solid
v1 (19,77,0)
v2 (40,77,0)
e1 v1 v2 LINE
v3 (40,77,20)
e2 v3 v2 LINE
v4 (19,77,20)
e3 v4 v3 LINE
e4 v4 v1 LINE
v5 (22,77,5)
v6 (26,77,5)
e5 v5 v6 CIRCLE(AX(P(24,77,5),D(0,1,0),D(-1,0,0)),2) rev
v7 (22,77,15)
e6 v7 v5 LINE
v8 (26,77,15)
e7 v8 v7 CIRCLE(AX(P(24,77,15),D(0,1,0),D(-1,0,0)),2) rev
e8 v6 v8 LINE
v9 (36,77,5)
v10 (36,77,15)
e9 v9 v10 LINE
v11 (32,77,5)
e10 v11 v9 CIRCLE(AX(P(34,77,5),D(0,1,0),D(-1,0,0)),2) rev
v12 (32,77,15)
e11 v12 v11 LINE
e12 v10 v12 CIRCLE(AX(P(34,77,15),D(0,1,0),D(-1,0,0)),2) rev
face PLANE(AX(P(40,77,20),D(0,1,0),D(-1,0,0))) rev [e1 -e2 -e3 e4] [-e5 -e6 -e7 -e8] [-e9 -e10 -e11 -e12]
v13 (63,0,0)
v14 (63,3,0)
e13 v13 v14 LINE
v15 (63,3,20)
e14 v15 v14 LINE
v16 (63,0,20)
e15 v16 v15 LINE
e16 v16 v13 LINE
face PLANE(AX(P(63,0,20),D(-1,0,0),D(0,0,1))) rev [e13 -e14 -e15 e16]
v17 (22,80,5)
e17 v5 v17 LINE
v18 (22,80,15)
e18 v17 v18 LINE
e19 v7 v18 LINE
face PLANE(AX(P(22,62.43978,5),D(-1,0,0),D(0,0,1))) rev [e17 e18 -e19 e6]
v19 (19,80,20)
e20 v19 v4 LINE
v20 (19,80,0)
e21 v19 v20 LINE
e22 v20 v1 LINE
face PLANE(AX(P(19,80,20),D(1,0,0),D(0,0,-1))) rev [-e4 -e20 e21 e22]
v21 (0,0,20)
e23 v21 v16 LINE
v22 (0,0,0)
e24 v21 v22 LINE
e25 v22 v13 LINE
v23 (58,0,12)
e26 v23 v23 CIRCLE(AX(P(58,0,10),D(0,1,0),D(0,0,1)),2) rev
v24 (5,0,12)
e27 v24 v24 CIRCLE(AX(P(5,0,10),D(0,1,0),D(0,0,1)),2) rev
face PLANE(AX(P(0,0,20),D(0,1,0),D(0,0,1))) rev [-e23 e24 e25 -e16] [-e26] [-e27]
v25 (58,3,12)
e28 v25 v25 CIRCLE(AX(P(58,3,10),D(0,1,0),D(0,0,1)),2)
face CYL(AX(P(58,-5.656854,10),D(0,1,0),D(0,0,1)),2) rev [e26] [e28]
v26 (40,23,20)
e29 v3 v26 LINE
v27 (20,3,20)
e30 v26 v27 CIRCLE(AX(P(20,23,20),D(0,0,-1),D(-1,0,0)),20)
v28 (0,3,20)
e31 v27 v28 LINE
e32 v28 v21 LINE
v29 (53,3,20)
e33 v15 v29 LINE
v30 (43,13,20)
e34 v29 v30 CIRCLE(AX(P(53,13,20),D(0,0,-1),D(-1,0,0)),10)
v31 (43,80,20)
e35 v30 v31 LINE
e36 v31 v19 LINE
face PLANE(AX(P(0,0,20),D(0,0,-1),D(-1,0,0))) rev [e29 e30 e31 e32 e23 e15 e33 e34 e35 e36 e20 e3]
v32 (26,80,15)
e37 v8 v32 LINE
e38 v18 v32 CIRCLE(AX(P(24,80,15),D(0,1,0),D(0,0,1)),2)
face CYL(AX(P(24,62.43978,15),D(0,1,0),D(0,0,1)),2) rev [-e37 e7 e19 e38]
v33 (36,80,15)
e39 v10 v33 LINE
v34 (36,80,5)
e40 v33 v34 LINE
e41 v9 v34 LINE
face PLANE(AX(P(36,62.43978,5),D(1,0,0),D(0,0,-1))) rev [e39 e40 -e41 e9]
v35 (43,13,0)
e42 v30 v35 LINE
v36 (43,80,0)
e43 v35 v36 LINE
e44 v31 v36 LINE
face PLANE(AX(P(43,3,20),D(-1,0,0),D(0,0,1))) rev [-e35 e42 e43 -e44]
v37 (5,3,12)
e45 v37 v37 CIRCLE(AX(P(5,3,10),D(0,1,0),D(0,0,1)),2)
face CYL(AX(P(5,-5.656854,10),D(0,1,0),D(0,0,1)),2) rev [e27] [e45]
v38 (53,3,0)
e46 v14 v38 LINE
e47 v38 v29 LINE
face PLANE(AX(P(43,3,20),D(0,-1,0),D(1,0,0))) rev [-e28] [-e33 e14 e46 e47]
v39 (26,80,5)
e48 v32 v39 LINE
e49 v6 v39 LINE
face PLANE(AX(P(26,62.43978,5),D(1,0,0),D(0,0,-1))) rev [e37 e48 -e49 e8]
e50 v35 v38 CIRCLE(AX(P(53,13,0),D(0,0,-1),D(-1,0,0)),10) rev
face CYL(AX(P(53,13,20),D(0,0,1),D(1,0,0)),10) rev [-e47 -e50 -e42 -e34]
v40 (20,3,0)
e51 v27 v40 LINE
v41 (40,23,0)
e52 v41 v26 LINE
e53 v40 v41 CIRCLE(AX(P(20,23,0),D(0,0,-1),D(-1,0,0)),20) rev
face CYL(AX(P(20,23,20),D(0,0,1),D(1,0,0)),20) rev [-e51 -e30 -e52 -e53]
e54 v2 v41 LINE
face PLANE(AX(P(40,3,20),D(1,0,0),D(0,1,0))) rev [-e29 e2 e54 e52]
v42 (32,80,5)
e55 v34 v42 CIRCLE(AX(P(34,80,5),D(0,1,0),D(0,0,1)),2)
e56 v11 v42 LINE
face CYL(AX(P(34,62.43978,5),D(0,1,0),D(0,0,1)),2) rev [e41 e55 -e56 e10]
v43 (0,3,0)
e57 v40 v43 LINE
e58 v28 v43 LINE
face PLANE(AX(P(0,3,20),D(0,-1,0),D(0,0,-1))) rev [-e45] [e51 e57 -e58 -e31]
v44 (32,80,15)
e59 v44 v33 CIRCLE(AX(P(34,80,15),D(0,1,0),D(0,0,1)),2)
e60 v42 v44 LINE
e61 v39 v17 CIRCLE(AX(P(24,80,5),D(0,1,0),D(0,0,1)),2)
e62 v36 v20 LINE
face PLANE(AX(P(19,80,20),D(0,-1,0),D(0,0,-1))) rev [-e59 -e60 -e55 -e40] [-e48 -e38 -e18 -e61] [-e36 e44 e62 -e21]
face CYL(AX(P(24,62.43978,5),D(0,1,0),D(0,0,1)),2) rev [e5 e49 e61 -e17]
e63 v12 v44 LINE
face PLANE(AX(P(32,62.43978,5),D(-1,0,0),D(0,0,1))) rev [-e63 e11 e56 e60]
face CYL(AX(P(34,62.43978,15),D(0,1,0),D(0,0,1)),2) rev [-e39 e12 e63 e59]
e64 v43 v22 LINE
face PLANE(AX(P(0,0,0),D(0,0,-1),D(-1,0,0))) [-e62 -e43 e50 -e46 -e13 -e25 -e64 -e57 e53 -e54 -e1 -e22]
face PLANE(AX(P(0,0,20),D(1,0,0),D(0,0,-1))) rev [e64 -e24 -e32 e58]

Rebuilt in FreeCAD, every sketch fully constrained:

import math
import FreeCAD as App
import Part
import Sketcher

V = App.Vector
Q = App.Units.Quantity


def edges_at(feature, points):
    """Names of the edges that pass closest to the given points."""
    edges = feature.Shape.Edges
    near = lambda p: min(range(len(edges)), key=lambda i: edges[i].distToShape(Part.Vertex(*p))[0])
    return sorted({f"Edge{near(p) + 1}" for p in points})

doc = App.newDocument("Part")
body = doc.addObject("PartDesign::Body", "Body")

# Sketch on XY plane
sketch1 = doc.addObject("Sketcher::SketchObject", "Sketch")
body.addObject(sketch1)
sketch1.AttachmentSupport = (doc.XY_Plane, [""])
sketch1.MapMode = "FlatFace"
sketch1.addGeometry([
    Part.LineSegment(V(63, 3, 0), V(43, 3, 0)),  # 0
    Part.LineSegment(V(43, 3, 0), V(43, 80, 0)),  # 1
    Part.LineSegment(V(43, 80, 0), V(19, 80, 0)),  # 2
    Part.LineSegment(V(19, 80, 0), V(19, 77, 0)),  # 3
    Part.LineSegment(V(19, 77, 0), V(40, 77, 0)),  # 4
    Part.LineSegment(V(40, 77, 0), V(40, 3, 0)),  # 5
    Part.LineSegment(V(40, 3, 0), V(0, 3, 0)),  # 6
    Part.LineSegment(V(0, 3, 0), V(0, 0, 0)),  # 7
    Part.LineSegment(V(0, 0, 0), V(63, 0, 0)),  # 8
    Part.LineSegment(V(63, 0, 0), V(63, 3, 0)),  # 9
], False)
sketch1.addConstraint([
    Sketcher.Constraint("Coincident", 0, 2, 1, 1),
    Sketcher.Constraint("Coincident", 1, 2, 2, 1),
    Sketcher.Constraint("Coincident", 2, 2, 3, 1),
    Sketcher.Constraint("Coincident", 3, 2, 4, 1),
    Sketcher.Constraint("Coincident", 4, 2, 5, 1),
    Sketcher.Constraint("Coincident", 5, 2, 6, 1),
    Sketcher.Constraint("Coincident", 6, 2, 7, 1),
    Sketcher.Constraint("Coincident", 7, 2, 8, 1),
    Sketcher.Constraint("Coincident", 8, 2, 9, 1),
    Sketcher.Constraint("Coincident", 9, 2, 0, 1),
    Sketcher.Constraint("Horizontal", 0),
    Sketcher.Constraint("Vertical", 1),
    Sketcher.Constraint("Horizontal", 2),
    Sketcher.Constraint("Vertical", 3),
    Sketcher.Constraint("Horizontal", 4),
    Sketcher.Constraint("Vertical", 5),
    Sketcher.Constraint("Horizontal", 6),
    Sketcher.Constraint("Vertical", 7),
    Sketcher.Constraint("Horizontal", 8),
    Sketcher.Constraint("Vertical", 9),
    Sketcher.Constraint("Coincident", 7, 2, -1, 1),
    Sketcher.Constraint("Horizontal", 0, 2, 5, 2),
    Sketcher.Constraint("Equal", 3, 7),
    Sketcher.Constraint("DistanceX", 0, 2, 0, 1, Q("20 mm")),
    Sketcher.Constraint("DistanceX", 2, 2, 2, 1, Q("24 mm")),
    Sketcher.Constraint("DistanceX", 4, 1, 4, 2, Q("21 mm")),
    Sketcher.Constraint("DistanceX", 6, 2, 6, 1, Q("40 mm")),
    Sketcher.Constraint("DistanceY", 1, 1, 1, 2, Q("77 mm")),
    Sketcher.Constraint("DistanceY", 3, 2, 3, 1, Q("3 mm")),
])
pad1 = doc.addObject("PartDesign::Pad", "Pad")
body.addObject(pad1)
pad1.Profile = sketch1
pad1.Length = 20

# Sketch on XZ plane
sketch2 = doc.addObject("Sketcher::SketchObject", "Sketch001")
body.addObject(sketch2)
sketch2.AttachmentSupport = (doc.XZ_Plane, [""])
sketch2.MapMode = "FlatFace"
sketch2.AttachmentOffset = App.Placement(V(0, 0, -80), App.Rotation())
sketch2.addGeometry([
    Part.LineSegment(V(26, 15, 0), V(26, 5, 0)),  # 0
    Part.ArcOfCircle(Part.Circle(V(24, 5, 0), V(0, 0, 1), 2), math.radians(180), math.radians(360)),  # 1
    Part.LineSegment(V(22, 5, 0), V(22, 15, 0)),  # 2
    Part.ArcOfCircle(Part.Circle(V(24, 15, 0), V(0, 0, 1), 2), math.radians(0), math.radians(180)),  # 3
    Part.LineSegment(V(36, 15, 0), V(36, 5, 0)),  # 4
    Part.ArcOfCircle(Part.Circle(V(34, 5, 0), V(0, 0, 1), 2), math.radians(180), math.radians(360)),  # 5
    Part.LineSegment(V(32, 5, 0), V(32, 15, 0)),  # 6
    Part.ArcOfCircle(Part.Circle(V(34, 15, 0), V(0, 0, 1), 2), math.radians(0), math.radians(180)),  # 7
], False)
sketch2.addConstraint([
    Sketcher.Constraint("Tangent", 0, 2, 1, 2),
    Sketcher.Constraint("Tangent", 1, 1, 2, 1),
    Sketcher.Constraint("Tangent", 2, 2, 3, 2),
    Sketcher.Constraint("Tangent", 3, 1, 0, 1),
    Sketcher.Constraint("Tangent", 4, 2, 5, 2),
    Sketcher.Constraint("Tangent", 5, 1, 6, 1),
    Sketcher.Constraint("Tangent", 6, 2, 7, 2),
    Sketcher.Constraint("Tangent", 7, 1, 4, 1),
    Sketcher.Constraint("Vertical", 0),
    Sketcher.Constraint("Vertical", 2),
    Sketcher.Constraint("Vertical", 4),
    Sketcher.Constraint("Vertical", 6),
    Sketcher.Constraint("Equal", 3, 5),
    Sketcher.Constraint("Horizontal", 1, 3, 5, 3),
    Sketcher.Constraint("Horizontal", 3, 3, 7, 3),
    Sketcher.Constraint("Radius", 1, Q("2 mm")),
    Sketcher.Constraint("DistanceY", 0, 2, 0, 1, Q("10 mm")),
    Sketcher.Constraint("DistanceX", -1, 1, 1, 3, Q("24 mm")),
    Sketcher.Constraint("DistanceY", -1, 1, 1, 3, Q("5 mm")),
    Sketcher.Constraint("DistanceX", -1, 1, 5, 3, Q("34 mm")),
])
pocket1 = doc.addObject("PartDesign::Pocket", "Pocket")
body.addObject(pocket1)
pocket1.Profile = sketch2
pocket1.Length = 3
pocket1.Reversed = True
doc.recompute()

fillet = doc.addObject("PartDesign::Fillet", "Fillet")
body.addObject(fillet)
fillet.Base = (pocket1, edges_at(pocket1, [(40, 3, 10)]))
fillet.Radius = 20
doc.recompute()

fillet2 = doc.addObject("PartDesign::Fillet", "Fillet001")
body.addObject(fillet2)
fillet2.Base = (fillet, edges_at(fillet, [(43, 3, 10)]))
fillet2.Radius = 10

# Sketch on XZ plane
sketch3 = doc.addObject("Sketcher::SketchObject", "Sketch002")
body.addObject(sketch3)
sketch3.AttachmentSupport = (doc.XZ_Plane, [""])
sketch3.MapMode = "FlatFace"
sketch3.AttachmentOffset = App.Placement(V(0, 0, -3), App.Rotation())
sketch3.addGeometry([
    Part.Circle(V(5, 10, 0), V(0, 0, 1), 2),
    Part.Circle(V(58, 10, 0), V(0, 0, 1), 2),
], False)
sketch3.addConstraint([
    Sketcher.Constraint("Equal", 0, 1),
    Sketcher.Constraint("Horizontal", 0, 3, 1, 3),
    Sketcher.Constraint("Diameter", 0, Q("4 mm")),
    Sketcher.Constraint("DistanceX", -1, 1, 0, 3, Q("5 mm")),
    Sketcher.Constraint("DistanceY", -1, 1, 0, 3, Q("10 mm")),
    Sketcher.Constraint("DistanceX", -1, 1, 1, 3, Q("58 mm")),
])
pocket2 = doc.addObject("PartDesign::Pocket", "Pocket001")
body.addObject(pocket2)
pocket2.Profile = sketch3
pocket2.Length = 3
pocket2.Reversed = True

doc.recompute()
